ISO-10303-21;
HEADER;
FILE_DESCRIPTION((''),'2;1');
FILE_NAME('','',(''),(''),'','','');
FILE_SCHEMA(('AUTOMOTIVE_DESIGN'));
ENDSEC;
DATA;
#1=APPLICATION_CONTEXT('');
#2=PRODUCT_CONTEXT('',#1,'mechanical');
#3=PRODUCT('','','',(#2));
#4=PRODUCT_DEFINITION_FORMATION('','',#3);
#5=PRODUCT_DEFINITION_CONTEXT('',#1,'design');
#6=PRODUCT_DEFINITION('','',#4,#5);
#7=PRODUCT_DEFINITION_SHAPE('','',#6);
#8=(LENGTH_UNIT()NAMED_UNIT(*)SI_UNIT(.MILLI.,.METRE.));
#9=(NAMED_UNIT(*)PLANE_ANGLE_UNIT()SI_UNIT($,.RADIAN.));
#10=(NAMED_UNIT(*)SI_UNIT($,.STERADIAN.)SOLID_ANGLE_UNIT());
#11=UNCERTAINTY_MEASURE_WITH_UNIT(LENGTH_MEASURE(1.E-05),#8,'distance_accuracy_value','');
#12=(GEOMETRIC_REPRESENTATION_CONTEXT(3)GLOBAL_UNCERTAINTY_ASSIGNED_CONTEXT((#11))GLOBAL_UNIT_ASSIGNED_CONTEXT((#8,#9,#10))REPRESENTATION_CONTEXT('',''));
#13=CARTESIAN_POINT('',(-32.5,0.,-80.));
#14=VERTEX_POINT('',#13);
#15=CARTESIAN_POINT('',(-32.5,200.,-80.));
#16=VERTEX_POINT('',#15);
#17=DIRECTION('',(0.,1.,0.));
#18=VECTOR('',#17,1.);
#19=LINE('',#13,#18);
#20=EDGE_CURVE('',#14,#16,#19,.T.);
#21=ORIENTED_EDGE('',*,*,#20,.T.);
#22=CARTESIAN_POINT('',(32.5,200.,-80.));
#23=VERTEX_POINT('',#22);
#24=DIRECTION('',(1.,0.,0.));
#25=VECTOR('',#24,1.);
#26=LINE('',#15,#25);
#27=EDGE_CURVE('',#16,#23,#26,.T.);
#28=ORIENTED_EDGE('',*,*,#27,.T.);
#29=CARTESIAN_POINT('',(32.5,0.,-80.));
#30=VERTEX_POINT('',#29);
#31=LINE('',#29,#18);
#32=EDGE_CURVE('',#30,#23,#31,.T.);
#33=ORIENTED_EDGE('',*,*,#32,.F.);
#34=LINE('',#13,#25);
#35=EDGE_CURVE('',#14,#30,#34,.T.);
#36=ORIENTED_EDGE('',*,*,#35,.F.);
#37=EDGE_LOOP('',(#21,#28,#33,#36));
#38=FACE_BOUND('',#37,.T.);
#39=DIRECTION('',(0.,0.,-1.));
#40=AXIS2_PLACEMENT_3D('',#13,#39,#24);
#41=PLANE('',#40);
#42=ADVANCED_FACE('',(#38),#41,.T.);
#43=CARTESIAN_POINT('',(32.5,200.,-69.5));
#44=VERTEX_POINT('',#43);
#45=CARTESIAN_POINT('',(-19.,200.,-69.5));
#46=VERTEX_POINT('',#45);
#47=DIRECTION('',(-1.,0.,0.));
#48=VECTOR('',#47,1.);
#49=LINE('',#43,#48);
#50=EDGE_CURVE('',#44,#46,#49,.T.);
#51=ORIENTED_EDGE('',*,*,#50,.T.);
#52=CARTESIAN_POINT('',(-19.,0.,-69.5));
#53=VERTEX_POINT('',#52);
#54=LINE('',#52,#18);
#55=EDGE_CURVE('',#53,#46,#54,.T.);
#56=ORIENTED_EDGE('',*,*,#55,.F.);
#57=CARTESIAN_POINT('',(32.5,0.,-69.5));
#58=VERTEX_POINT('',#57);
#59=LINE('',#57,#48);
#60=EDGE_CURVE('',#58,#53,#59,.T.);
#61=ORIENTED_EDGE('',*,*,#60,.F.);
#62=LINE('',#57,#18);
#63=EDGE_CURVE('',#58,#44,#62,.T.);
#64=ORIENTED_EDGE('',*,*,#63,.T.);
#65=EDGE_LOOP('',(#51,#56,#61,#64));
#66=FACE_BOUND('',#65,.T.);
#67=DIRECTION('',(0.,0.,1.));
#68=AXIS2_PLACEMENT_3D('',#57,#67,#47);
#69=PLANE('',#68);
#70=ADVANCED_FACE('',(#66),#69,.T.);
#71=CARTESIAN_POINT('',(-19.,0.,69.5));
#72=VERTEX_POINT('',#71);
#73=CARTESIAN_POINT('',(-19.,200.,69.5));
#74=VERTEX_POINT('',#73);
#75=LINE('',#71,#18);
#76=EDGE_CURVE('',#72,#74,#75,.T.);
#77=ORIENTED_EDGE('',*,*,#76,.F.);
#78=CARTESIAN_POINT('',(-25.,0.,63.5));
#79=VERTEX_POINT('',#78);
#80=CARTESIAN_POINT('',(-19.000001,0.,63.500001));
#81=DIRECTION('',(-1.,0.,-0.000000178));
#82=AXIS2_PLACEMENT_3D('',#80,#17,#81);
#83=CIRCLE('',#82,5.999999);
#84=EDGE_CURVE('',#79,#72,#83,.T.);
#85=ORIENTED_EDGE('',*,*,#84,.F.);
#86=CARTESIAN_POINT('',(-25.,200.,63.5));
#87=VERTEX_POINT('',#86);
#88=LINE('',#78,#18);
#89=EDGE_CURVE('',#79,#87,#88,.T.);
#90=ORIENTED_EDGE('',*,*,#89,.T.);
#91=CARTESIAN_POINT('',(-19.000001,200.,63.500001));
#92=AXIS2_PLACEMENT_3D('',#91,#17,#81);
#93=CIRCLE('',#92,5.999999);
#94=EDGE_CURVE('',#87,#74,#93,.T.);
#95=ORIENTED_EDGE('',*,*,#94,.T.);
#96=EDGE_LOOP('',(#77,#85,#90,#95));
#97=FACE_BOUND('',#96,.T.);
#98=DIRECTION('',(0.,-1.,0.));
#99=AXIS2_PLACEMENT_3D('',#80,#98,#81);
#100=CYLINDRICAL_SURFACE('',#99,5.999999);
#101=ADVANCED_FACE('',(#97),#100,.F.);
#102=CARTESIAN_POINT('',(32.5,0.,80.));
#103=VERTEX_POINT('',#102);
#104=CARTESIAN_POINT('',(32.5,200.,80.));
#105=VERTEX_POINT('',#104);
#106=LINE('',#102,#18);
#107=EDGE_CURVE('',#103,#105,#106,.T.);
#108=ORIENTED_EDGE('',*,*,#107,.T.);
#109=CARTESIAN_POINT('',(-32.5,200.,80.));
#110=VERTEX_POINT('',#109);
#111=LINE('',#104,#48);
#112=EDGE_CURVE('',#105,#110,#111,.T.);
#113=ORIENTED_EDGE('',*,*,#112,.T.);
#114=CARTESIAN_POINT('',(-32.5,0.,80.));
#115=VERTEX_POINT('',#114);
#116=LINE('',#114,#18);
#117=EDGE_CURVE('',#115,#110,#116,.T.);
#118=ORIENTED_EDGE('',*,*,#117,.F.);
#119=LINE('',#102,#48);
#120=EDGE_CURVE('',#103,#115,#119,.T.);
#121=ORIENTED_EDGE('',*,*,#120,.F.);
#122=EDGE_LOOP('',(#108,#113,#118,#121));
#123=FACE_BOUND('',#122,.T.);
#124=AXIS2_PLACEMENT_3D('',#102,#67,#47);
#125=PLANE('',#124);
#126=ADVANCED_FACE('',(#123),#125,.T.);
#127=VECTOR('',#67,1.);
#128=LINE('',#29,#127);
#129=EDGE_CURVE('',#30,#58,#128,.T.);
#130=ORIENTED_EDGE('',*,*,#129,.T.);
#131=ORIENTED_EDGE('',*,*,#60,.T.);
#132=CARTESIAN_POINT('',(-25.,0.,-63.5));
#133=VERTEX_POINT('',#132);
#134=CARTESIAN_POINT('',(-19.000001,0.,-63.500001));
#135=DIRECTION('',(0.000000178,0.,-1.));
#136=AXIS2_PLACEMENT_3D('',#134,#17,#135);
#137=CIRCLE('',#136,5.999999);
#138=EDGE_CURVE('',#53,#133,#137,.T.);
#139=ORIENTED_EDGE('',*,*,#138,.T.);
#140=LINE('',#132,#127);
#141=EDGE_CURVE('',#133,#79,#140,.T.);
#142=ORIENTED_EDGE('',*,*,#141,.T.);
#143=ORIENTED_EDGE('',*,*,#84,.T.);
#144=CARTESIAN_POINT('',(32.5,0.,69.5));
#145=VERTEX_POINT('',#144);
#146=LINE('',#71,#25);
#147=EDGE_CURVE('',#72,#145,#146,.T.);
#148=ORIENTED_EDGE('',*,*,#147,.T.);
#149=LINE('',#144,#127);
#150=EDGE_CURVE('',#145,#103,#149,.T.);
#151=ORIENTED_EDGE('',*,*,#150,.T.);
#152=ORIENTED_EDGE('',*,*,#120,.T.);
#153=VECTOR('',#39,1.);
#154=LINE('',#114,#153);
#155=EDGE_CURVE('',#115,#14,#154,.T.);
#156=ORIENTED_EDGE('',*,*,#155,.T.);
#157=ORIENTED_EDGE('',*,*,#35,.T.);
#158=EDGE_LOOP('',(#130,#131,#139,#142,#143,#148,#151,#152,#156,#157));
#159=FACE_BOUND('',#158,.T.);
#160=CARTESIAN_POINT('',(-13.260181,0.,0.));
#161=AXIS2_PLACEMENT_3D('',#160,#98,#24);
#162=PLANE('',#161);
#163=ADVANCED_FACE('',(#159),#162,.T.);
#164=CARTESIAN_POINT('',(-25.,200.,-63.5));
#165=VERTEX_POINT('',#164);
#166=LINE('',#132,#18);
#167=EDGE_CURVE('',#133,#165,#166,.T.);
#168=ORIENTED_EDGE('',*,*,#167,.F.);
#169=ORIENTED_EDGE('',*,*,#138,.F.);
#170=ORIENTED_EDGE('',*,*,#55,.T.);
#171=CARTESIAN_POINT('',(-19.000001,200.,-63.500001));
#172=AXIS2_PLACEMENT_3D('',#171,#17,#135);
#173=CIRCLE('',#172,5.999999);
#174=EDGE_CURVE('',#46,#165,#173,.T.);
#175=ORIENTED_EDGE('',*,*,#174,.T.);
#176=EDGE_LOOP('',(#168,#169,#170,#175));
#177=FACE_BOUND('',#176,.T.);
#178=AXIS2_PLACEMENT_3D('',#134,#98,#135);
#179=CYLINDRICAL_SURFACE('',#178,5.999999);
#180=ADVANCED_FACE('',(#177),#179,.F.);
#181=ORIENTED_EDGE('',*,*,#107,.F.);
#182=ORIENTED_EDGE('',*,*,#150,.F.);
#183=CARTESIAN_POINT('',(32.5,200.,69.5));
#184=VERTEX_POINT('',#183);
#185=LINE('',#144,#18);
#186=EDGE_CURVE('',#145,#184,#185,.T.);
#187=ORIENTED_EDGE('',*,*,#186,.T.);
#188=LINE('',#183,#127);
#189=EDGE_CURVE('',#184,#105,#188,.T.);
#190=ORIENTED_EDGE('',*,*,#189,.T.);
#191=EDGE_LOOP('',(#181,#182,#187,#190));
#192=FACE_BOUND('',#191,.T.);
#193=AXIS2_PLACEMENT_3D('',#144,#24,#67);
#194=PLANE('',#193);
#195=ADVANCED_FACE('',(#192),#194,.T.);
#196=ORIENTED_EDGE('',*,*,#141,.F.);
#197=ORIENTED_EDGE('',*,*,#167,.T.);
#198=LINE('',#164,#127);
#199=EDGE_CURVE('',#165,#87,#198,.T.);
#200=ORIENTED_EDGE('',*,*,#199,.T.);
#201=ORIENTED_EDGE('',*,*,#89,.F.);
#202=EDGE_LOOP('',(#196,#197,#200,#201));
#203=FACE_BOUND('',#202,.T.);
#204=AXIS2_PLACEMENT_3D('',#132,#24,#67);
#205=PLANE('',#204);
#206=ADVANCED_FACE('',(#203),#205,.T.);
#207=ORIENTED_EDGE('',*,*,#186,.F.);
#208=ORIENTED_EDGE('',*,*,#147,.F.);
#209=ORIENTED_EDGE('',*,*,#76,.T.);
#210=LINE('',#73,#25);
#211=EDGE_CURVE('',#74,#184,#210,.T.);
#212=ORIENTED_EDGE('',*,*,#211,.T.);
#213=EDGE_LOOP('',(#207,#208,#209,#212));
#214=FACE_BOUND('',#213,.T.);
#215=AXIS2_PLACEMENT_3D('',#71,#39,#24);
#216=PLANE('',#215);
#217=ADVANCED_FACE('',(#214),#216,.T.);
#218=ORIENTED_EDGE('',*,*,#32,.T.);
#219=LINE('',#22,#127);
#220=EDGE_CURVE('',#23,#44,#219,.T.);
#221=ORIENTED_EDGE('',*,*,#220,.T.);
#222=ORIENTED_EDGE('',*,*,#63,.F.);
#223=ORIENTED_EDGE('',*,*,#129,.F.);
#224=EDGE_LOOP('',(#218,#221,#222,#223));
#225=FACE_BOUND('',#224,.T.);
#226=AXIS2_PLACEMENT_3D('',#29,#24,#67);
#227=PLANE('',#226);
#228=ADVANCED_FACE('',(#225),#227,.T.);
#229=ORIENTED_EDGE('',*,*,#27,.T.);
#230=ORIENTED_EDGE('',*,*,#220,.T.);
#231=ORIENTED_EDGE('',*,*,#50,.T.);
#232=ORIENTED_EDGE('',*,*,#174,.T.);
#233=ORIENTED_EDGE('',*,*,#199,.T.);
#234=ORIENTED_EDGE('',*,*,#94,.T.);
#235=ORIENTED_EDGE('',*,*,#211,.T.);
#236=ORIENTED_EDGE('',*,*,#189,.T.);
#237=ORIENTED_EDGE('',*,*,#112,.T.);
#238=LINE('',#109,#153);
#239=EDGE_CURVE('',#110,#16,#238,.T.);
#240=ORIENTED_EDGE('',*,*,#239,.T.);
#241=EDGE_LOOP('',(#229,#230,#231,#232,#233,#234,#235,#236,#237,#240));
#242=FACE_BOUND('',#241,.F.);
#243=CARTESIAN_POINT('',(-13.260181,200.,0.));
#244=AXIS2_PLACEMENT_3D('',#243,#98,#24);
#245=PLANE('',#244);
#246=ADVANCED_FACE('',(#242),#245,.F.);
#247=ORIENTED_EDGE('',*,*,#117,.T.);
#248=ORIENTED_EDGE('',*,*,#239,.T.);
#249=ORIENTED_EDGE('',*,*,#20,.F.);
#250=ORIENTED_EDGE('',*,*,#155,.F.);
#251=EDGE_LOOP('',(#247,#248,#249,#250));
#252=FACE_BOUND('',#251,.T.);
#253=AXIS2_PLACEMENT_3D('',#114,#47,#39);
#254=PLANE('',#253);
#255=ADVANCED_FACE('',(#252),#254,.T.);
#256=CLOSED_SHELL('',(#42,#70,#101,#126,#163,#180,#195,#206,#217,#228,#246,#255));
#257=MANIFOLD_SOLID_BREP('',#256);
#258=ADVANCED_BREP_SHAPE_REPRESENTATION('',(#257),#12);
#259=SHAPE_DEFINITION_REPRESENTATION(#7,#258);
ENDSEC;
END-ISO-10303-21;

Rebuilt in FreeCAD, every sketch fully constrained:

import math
import FreeCAD as App
import Part
import Sketcher
from FreeCAD import Vector
Q = App.Units.Quantity

doc = App.newDocument("Part")
params = doc.addObject("Spreadsheet::Sheet", "Params")
for row, (alias, value) in enumerate([
    ("sketch1_radius", "5.999999 mm"),
    ("sketch1_width", "65 mm"),
    ("sketch1_height", "160 mm"),
    ("sketch1_height2", "127 mm"),
    ("sketch1_width2", "51.5 mm"),
    ("pad1_length", "200 mm"),
], start=1):
    params.set(f"A{row}", alias)
    params.set(f"B{row}", "=" + value)
    params.setAlias(f"B{row}", alias)

body = doc.addObject("PartDesign::Body", "Body")

# Sketch on XZ plane
sketch1 = doc.addObject("Sketcher::SketchObject", "Sketch")
body.addObject(sketch1)
sketch1.AttachmentSupport = (doc.XZ_Plane, [""])
sketch1.MapMode = "FlatFace"
sketch1.addGeometry([
    Part.LineSegment(Vector(32, 70, 0), Vector(32, 80, 0)),  # 0
    Part.LineSegment(Vector(32, 80, 0), Vector(-32, 80, 0)),  # 1
    Part.LineSegment(Vector(-32, 80, 0), Vector(-32, -80, 0)),  # 2
    Part.LineSegment(Vector(-32, -80, 0), Vector(32, -80, 0)),  # 3
    Part.LineSegment(Vector(32, -80, 0), Vector(32, -70, 0)),  # 4
    Part.LineSegment(Vector(32, -70, 0), Vector(-19, -70, 0)),  # 5
    Part.ArcOfCircle(Part.Circle(Vector(-19, -64, 0), Vector(0, 0, 1), 6), math.radians(180), math.radians(270)),  # 6
    Part.LineSegment(Vector(-25, -64, 0), Vector(-25, 64, 0)),  # 7
    Part.ArcOfCircle(Part.Circle(Vector(-19, 64, 0), Vector(0, 0, 1), 6), math.radians(90), math.radians(180)),  # 8
    Part.LineSegment(Vector(-19, 70, 0), Vector(32, 70, 0)),  # 9
], False)
sketch1.addConstraint([
    Sketcher.Constraint("Coincident", 0, 2, 1, 1),
    Sketcher.Constraint("Coincident", 1, 2, 2, 1),
    Sketcher.Constraint("Coincident", 2, 2, 3, 1),
    Sketcher.Constraint("Coincident", 3, 2, 4, 1),
    Sketcher.Constraint("Coincident", 4, 2, 5, 1),
    Sketcher.Constraint("Tangent", 5, 2, 6, 2),
    Sketcher.Constraint("Tangent", 6, 1, 7, 1),
    Sketcher.Constraint("Tangent", 7, 2, 8, 2),
    Sketcher.Constraint("Tangent", 8, 1, 9, 1),
    Sketcher.Constraint("Coincident", 9, 2, 0, 1),
    Sketcher.Constraint("Vertical", 0),
    Sketcher.Constraint("Horizontal", 1),
    Sketcher.Constraint("Vertical", 2),
    Sketcher.Constraint("Horizontal", 3),
    Sketcher.Constraint("Vertical", 4),
    Sketcher.Constraint("Horizontal", 5),
    Sketcher.Constraint("Vertical", 7),
    Sketcher.Constraint("Horizontal", 9),
    Sketcher.Constraint("Equal", 6, 8),
    Sketcher.Constraint("Symmetric", 0, 2, 2, 2, -1, 1),
    Sketcher.Constraint("Symmetric", 4, 2, 9, 2, -1),
    Sketcher.Constraint("Radius", 6, Q("5.999999 mm")),
    Sketcher.Constraint("DistanceX", 1, 2, 1, 1, Q("65 mm")),
    Sketcher.Constraint("DistanceY", 2, 2, 2, 1, Q("160 mm")),
    Sketcher.Constraint("DistanceY", 7, 1, 7, 2, Q("127 mm")),
    Sketcher.Constraint("DistanceX", 5, 2, 5, 1, Q("51.5 mm")),
])
sketch1.setExpression("Constraints[21]", "Params.sketch1_radius")
sketch1.setExpression("Constraints[22]", "Params.sketch1_width")
sketch1.setExpression("Constraints[23]", "Params.sketch1_height")
sketch1.setExpression("Constraints[24]", "Params.sketch1_height2")
sketch1.setExpression("Constraints[25]", "Params.sketch1_width2")
pad1 = doc.addObject("PartDesign::Pad", "Pad")
body.addObject(pad1)
pad1.Profile = sketch1
pad1.setExpression("Length", "Params.pad1_length")
pad1.Reversed = True

doc.recompute()
